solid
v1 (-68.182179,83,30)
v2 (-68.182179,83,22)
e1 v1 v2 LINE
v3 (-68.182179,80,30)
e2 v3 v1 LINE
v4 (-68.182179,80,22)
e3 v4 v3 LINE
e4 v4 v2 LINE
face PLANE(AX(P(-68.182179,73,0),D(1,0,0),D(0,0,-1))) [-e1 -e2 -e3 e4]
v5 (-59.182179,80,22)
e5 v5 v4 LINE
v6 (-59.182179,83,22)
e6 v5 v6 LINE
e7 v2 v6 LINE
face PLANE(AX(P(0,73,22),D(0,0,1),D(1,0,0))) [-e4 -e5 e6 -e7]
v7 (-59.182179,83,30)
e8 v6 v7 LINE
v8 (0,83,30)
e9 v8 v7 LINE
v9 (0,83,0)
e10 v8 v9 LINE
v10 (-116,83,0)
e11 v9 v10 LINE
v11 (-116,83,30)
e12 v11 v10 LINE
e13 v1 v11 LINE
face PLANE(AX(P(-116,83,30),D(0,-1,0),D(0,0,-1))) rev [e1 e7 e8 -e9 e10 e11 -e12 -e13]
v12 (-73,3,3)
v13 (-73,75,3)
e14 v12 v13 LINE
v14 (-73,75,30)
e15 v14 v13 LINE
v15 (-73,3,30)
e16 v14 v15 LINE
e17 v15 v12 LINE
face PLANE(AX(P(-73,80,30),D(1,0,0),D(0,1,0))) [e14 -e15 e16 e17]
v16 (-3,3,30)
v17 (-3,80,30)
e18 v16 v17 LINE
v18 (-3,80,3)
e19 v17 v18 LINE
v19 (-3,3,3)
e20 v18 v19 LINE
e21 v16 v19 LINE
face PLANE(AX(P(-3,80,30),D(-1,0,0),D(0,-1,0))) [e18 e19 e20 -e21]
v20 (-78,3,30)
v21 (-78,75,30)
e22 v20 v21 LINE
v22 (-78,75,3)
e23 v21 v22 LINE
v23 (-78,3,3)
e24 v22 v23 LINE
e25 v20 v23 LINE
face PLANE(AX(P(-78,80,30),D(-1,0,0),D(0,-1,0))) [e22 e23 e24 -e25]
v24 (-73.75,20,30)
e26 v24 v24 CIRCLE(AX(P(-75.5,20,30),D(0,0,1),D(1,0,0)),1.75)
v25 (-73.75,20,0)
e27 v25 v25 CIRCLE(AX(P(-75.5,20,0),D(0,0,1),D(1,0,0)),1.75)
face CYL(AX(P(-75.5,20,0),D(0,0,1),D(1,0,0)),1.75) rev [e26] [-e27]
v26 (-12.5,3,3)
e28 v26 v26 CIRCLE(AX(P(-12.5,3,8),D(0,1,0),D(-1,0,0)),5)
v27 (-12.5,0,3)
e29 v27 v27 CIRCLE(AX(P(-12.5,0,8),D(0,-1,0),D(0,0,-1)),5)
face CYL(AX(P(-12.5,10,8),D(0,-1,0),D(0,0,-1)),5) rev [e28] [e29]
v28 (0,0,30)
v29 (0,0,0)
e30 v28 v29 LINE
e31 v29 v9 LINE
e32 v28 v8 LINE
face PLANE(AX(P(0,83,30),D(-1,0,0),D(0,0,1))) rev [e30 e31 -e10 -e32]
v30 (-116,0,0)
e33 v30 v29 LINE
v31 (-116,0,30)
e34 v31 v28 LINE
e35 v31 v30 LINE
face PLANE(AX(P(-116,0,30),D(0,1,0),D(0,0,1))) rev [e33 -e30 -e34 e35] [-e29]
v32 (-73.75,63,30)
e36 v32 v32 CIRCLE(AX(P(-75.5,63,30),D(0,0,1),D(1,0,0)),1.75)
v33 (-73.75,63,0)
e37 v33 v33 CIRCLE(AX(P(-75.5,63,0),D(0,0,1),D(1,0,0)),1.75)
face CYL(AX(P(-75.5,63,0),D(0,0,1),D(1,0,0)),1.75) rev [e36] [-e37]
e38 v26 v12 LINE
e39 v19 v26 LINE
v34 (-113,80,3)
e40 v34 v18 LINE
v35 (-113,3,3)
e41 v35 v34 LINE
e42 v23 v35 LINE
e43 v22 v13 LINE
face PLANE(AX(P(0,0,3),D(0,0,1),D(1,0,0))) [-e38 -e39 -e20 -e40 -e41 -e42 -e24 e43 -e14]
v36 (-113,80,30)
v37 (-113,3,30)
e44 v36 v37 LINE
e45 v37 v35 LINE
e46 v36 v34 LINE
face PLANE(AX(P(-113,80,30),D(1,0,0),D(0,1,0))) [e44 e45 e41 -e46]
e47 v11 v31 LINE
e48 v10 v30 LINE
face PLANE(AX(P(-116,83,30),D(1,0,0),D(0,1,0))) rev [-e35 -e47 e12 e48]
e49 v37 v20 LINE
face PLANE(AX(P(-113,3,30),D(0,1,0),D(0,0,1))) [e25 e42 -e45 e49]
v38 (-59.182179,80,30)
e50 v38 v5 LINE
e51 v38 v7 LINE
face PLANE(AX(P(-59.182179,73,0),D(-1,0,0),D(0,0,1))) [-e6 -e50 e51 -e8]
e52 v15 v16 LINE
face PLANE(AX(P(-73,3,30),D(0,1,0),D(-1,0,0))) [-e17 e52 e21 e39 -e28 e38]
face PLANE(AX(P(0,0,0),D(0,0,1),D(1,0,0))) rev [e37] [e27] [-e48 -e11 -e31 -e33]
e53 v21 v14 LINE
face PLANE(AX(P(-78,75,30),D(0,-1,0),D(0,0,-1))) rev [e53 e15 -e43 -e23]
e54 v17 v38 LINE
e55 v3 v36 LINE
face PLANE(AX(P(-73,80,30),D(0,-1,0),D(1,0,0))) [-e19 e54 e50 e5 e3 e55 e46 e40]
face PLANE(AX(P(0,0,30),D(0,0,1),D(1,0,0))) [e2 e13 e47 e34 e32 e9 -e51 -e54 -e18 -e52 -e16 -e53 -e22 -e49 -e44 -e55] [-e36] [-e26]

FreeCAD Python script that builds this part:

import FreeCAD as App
import Part
import Sketcher

V = App.Vector

doc = App.newDocument("Part")
body = doc.addObject("PartDesign::Body", "Body")

# Sketch on XY plane
sketch1 = body.newObject("Sketcher::SketchObject", "Sketch")
sketch1.AttachmentSupport = (doc.getObject("XY_Plane"), [""])
sketch1.MapMode = "FlatFace"
sketch1.addGeometry(Part.LineSegment(V(-116, 83, 0), V(-116, 0, 0)), False)
sketch1.addGeometry(Part.LineSegment(V(-116, 0, 0), V(0, 0, 0)), False)
sketch1.addGeometry(Part.LineSegment(V(0, 0, 0), V(0, 83, 0)), False)
sketch1.addGeometry(Part.LineSegment(V(0, 83, 0), V(-116, 83, 0)), False)
sketch1.addGeometry(Part.LineSegment(V(-78, 3, 0), V(-113, 3, 0)), False)
sketch1.addGeometry(Part.LineSegment(V(-113, 3, 0), V(-113, 80, 0)), False)
sketch1.addGeometry(Part.LineSegment(V(-113, 80, 0), V(-78, 80, 0)), False)
sketch1.addGeometry(Part.LineSegment(V(-78, 80, 0), V(-78, 3, 0)), False)
sketch1.addGeometry(Part.LineSegment(V(-3, 3, 0), V(-73, 3, 0)), False)
sketch1.addGeometry(Part.LineSegment(V(-73, 3, 0), V(-73, 80, 0)), False)
sketch1.addGeometry(Part.LineSegment(V(-73, 80, 0), V(-3, 80, 0)), False)
sketch1.addGeometry(Part.LineSegment(V(-3, 80, 0), V(-3, 3, 0)), False)
sketch1.addConstraint(Sketcher.Constraint("Coincident", 0, 2, 1, 1))
sketch1.addConstraint(Sketcher.Constraint("Coincident", 1, 2, 2, 1))
sketch1.addConstraint(Sketcher.Constraint("Coincident", 2, 2, 3, 1))
sketch1.addConstraint(Sketcher.Constraint("Coincident", 3, 2, 0, 1))
sketch1.addConstraint(Sketcher.Constraint("Coincident", 4, 2, 5, 1))
sketch1.addConstraint(Sketcher.Constraint("Coincident", 5, 2, 6, 1))
sketch1.addConstraint(Sketcher.Constraint("Coincident", 6, 2, 7, 1))
sketch1.addConstraint(Sketcher.Constraint("Coincident", 7, 2, 4, 1))
sketch1.addConstraint(Sketcher.Constraint("Coincident", 8, 2, 9, 1))
sketch1.addConstraint(Sketcher.Constraint("Coincident", 9, 2, 10, 1))
sketch1.addConstraint(Sketcher.Constraint("Coincident", 10, 2, 11, 1))
sketch1.addConstraint(Sketcher.Constraint("Coincident", 11, 2, 8, 1))
sketch1.addConstraint(Sketcher.Constraint("Vertical", 0))
sketch1.addConstraint(Sketcher.Constraint("Horizontal", 1))
sketch1.addConstraint(Sketcher.Constraint("Vertical", 2))
sketch1.addConstraint(Sketcher.Constraint("Horizontal", 3))
sketch1.addConstraint(Sketcher.Constraint("Horizontal", 4))
sketch1.addConstraint(Sketcher.Constraint("Vertical", 5))
sketch1.addConstraint(Sketcher.Constraint("Horizontal", 6))
sketch1.addConstraint(Sketcher.Constraint("Vertical", 7))
sketch1.addConstraint(Sketcher.Constraint("Horizontal", 8))
sketch1.addConstraint(Sketcher.Constraint("Vertical", 9))
sketch1.addConstraint(Sketcher.Constraint("Horizontal", 10))
sketch1.addConstraint(Sketcher.Constraint("Vertical", 11))
sketch1.addConstraint(Sketcher.Constraint("Coincident", 1, 2, -1, 1))
sketch1.addConstraint(Sketcher.Constraint("Horizontal", 7, 2, 8, 2))
sketch1.addConstraint(Sketcher.Constraint("Horizontal", 6, 2, 9, 2))
sketch1.addConstraint(Sketcher.Constraint("DistanceX", 1, 1, 1, 2, 116.0))
sketch1.addConstraint(Sketcher.Constraint("DistanceX", 4, 2, 4, 1, 35.0))
sketch1.addConstraint(Sketcher.Constraint("DistanceX", 8, 2, 8, 1, 70.0))
sketch1.addConstraint(Sketcher.Constraint("DistanceY", 0, 2, 0, 1, 83.0))
sketch1.addConstraint(Sketcher.Constraint("DistanceY", 5, 1, 5, 2, 77.0))
sketch1.addConstraint(Sketcher.Constraint("DistanceX", 4, 2, -1, 1, 113.0))
sketch1.addConstraint(Sketcher.Constraint("DistanceY", -1, 1, 4, 2, 3.0))
sketch1.addConstraint(Sketcher.Constraint("DistanceX", 8, 2, -1, 1, 73.0))
pad1 = body.newObject("PartDesign::Pad", "Pad")
pad1.Profile = sketch1
pad1.Length = 30

# Sketch on XY plane
sketch2 = body.newObject("Sketcher::SketchObject", "Sketch001")
sketch2.AttachmentSupport = (doc.getObject("XY_Plane"), [""])
sketch2.MapMode = "FlatFace"
sketch2.addGeometry(Part.LineSegment(V(-3, 80, 0), V(-3, 3, 0)), False)
sketch2.addGeometry(Part.LineSegment(V(-3, 3, 0), V(-73, 3, 0)), False)
sketch2.addGeometry(Part.LineSegment(V(-73, 3, 0), V(-73, 80, 0)), False)
sketch2.addGeometry(Part.LineSegment(V(-73, 80, 0), V(-3, 80, 0)), False)
sketch2.addGeometry(Part.LineSegment(V(-78, 80, 0), V(-78, 3, 0)), False)
sketch2.addGeometry(Part.LineSegment(V(-78, 3, 0), V(-113, 3, 0)), False)
sketch2.addGeometry(Part.LineSegment(V(-113, 3, 0), V(-113, 80, 0)), False)
sketch2.addGeometry(Part.LineSegment(V(-113, 80, 0), V(-78, 80, 0)), False)
sketch2.addConstraint(Sketcher.Constraint("Coincident", 0, 2, 1, 1))
sketch2.addConstraint(Sketcher.Constraint("Coincident", 1, 2, 2, 1))
sketch2.addConstraint(Sketcher.Constraint("Coincident", 2, 2, 3, 1))
sketch2.addConstraint(Sketcher.Constraint("Coincident", 3, 2, 0, 1))
sketch2.addConstraint(Sketcher.Constraint("Coincident", 4, 2, 5, 1))
sketch2.addConstraint(Sketcher.Constraint("Coincident", 5, 2, 6, 1))
sketch2.addConstraint(Sketcher.Constraint("Coincident", 6, 2, 7, 1))
sketch2.addConstraint(Sketcher.Constraint("Coincident", 7, 2, 4, 1))
sketch2.addConstraint(Sketcher.Constraint("Vertical", 0))
sketch2.addConstraint(Sketcher.Constraint("Horizontal", 1))
sketch2.addConstraint(Sketcher.Constraint("Vertical", 2))
sketch2.addConstraint(Sketcher.Constraint("Horizontal", 3))
sketch2.addConstraint(Sketcher.Constraint("Vertical", 4))
sketch2.addConstraint(Sketcher.Constraint("Horizontal", 5))
sketch2.addConstraint(Sketcher.Constraint("Vertical", 6))
sketch2.addConstraint(Sketcher.Constraint("Horizontal", 7))
sketch2.addConstraint(Sketcher.Constraint("Horizontal", 1, 2, 4, 2))
sketch2.addConstraint(Sketcher.Constraint("Horizontal", 3, 2, 6, 2))
sketch2.addConstraint(Sketcher.Constraint("DistanceX", 1, 2, 1, 1, 70.0))
sketch2.addConstraint(Sketcher.Constraint("DistanceX", 5, 2, 5, 1, 35.0))
sketch2.addConstraint(Sketcher.Constraint("DistanceY", 0, 2, 0, 1, 77.0))
sketch2.addConstraint(Sketcher.Constraint("DistanceX", 0, 2, -1, 1, 3.0))
sketch2.addConstraint(Sketcher.Constraint("DistanceY", -1, 1, 0, 2, 3.0))
sketch2.addConstraint(Sketcher.Constraint("DistanceX", 4, 2, -1, 1, 78.0))
pad2 = body.newObject("PartDesign::Pad", "Pad001")
pad2.Profile = sketch2
pad2.Length = 3

# Sketch on YZ plane
sketch3 = body.newObject("Sketcher::SketchObject", "Sketch002")
sketch3.AttachmentSupport = (doc.getObject("YZ_Plane"), [""])
sketch3.MapMode = "FlatFace"
sketch3.AttachmentOffset = App.Placement(V(0, 0, -73), App.Rotation())
sketch3.addGeometry(Part.LineSegment(V(80, 30, 0), V(75, 30, 0)), False)
sketch3.addGeometry(Part.LineSegment(V(75, 30, 0), V(75, 3, 0)), False)
sketch3.addGeometry(Part.LineSegment(V(75, 3, 0), V(80, 3, 0)), False)
sketch3.addGeometry(Part.LineSegment(V(80, 3, 0), V(80, 30, 0)), False)
sketch3.addConstraint(Sketcher.Constraint("Coincident", 0, 2, 1, 1))
sketch3.addConstraint(Sketcher.Constraint("Coincident", 1, 2, 2, 1))
sketch3.addConstraint(Sketcher.Constraint("Coincident", 2, 2, 3, 1))
sketch3.addConstraint(Sketcher.Constraint("Coincident", 3, 2, 0, 1))
sketch3.addConstraint(Sketcher.Constraint("Horizontal", 0))
sketch3.addConstraint(Sketcher.Constraint("Vertical", 1))
sketch3.addConstraint(Sketcher.Constraint("Horizontal", 2))
sketch3.addConstraint(Sketcher.Constraint("Vertical", 3))
sketch3.addConstraint(Sketcher.Constraint("DistanceX", 0, 2, 0, 1, 5.0))
sketch3.addConstraint(Sketcher.Constraint("DistanceY", 1, 2, 1, 1, 27.0))
sketch3.addConstraint(Sketcher.Constraint("DistanceX", -1, 1, 0, 2, 75.0))
sketch3.addConstraint(Sketcher.Constraint("DistanceY", -1, 1, 0, 2, 30.0))
pocket1 = body.newObject("PartDesign::Pocket", "Pocket")
pocket1.Profile = sketch3
pocket1.Length = 5

# Sketch on XZ plane
sketch4 = body.newObject("Sketcher::SketchObject", "Sketch003")
sketch4.AttachmentSupport = (doc.getObject("XZ_Plane"), [""])
sketch4.MapMode = "FlatFace"
sketch4.addGeometry(Part.Circle(V(-12.5, 8, 0), V(0, 0, 1), 5), False)
sketch4.addConstraint(Sketcher.Constraint("Diameter", 0, 10.0))
sketch4.addConstraint(Sketcher.Constraint("DistanceY", -1, 1, 0, 3, 8.0))
sketch4.addConstraint(Sketcher.Constraint("DistanceX", 0, 3, -1, 1, 12.5))
pocket2 = body.newObject("PartDesign::Pocket", "Pocket001")
pocket2.Profile = sketch4
pocket2.Length = 10

# Sketch on XY plane
sketch5 = body.newObject("Sketcher::SketchObject", "Sketch004")
sketch5.AttachmentSupport = (doc.getObject("XY_Plane"), [""])
sketch5.MapMode = "FlatFace"
sketch5.AttachmentOffset = App.Placement(V(0, 0, 30), App.Rotation())
sketch5.addGeometry(Part.Circle(V(-75.5, 63, 0), V(0, 0, 1), 1.75), False)
sketch5.addGeometry(Part.Circle(V(-75.5, 20, 0), V(0, 0, 1), 1.75), False)
sketch5.addConstraint(Sketcher.Constraint("Equal", 0, 1))
sketch5.addConstraint(Sketcher.Constraint("Vertical", 0, 3, 1, 3))
sketch5.addConstraint(Sketcher.Constraint("Diameter", 0, 3.5))
sketch5.addConstraint(Sketcher.Constraint("DistanceY", -1, 1, 0, 3, 63.0))
sketch5.addConstraint(Sketcher.Constraint("DistanceY", -1, 1, 1, 3, 20.0))
sketch5.addConstraint(Sketcher.Constraint("DistanceX", 0, 3, -1, 1, 75.5))
pocket3 = body.newObject("PartDesign::Pocket", "Pocket002")
pocket3.Profile = sketch5
pocket3.Length = 30

# Sketch on XZ plane
sketch6 = body.newObject("Sketcher::SketchObject", "Sketch005")
sketch6.AttachmentSupport = (doc.getObject("XZ_Plane"), [""])
sketch6.MapMode = "FlatFace"
sketch6.AttachmentOffset = App.Placement(V(0, 0, -83), App.Rotation())
sketch6.addGeometry(Part.LineSegment(V(-68.182179, 22, 0), V(-68.182179, 30, 0)), False)
sketch6.addGeometry(Part.LineSegment(V(-68.182179, 30, 0), V(-59.182179, 30, 0)), False)
sketch6.addGeometry(Part.LineSegment(V(-59.182179, 30, 0), V(-59.182179, 22, 0)), False)
sketch6.addGeometry(Part.LineSegment(V(-59.182179, 22, 0), V(-68.182179, 22, 0)), False)
sketch6.addConstraint(Sketcher.Constraint("Coincident", 0, 2, 1, 1))
sketch6.addConstraint(Sketcher.Constraint("Coincident", 1, 2, 2, 1))
sketch6.addConstraint(Sketcher.Constraint("Coincident", 2, 2, 3, 1))
sketch6.addConstraint(Sketcher.Constraint("Coincident", 3, 2, 0, 1))
sketch6.addConstraint(Sketcher.Constraint("Vertical", 0))
sketch6.addConstraint(Sketcher.Constraint("Horizontal", 1))
sketch6.addConstraint(Sketcher.Constraint("Vertical", 2))
sketch6.addConstraint(Sketcher.Constraint("Horizontal", 3))
sketch6.addConstraint(Sketcher.Constraint("DistanceX", 1, 1, 1, 2, 9.0))
sketch6.addConstraint(Sketcher.Constraint("DistanceY", 0, 1, 0, 2, 8.0))
sketch6.addConstraint(Sketcher.Constraint("DistanceY", -1, 1, 0, 2, 30.0))
sketch6.addConstraint(Sketcher.Constraint("DistanceX", 0, 2, -1, 1, 68.182179))
pocket4 = body.newObject("PartDesign::Pocket", "Pocket003")
pocket4.Profile = sketch6
pocket4.Length = 10
pocket4.Reversed = True

doc.recompute()
